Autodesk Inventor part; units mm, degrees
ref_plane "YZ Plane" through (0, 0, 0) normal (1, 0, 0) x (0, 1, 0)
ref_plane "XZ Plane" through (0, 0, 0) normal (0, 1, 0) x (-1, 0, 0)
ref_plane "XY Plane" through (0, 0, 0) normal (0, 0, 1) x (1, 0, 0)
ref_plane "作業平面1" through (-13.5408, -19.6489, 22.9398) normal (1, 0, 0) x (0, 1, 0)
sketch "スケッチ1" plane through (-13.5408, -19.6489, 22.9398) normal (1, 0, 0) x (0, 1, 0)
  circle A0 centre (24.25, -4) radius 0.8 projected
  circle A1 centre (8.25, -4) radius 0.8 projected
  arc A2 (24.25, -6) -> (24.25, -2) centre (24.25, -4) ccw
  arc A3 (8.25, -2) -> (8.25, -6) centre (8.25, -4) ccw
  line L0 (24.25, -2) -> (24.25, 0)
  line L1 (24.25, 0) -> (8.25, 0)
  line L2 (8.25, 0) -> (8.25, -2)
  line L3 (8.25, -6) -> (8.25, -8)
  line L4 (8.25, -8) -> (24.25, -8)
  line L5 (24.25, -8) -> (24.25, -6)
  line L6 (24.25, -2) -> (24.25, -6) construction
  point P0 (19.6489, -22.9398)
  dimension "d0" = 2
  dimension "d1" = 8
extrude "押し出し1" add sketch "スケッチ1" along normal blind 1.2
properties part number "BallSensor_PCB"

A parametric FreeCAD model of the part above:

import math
import FreeCAD as App
import Part
import Sketcher

doc = App.newDocument("Part")
params = doc.addObject("Spreadsheet::Sheet", "Params")
for row, (alias, value) in enumerate([
    ("sketch1_radius", "2 mm"),
    ("sketch1_height", "2 mm"),
    ("sketch1_diameter", "1.6 mm"),
    ("sketch1_width", "16 mm"),
    ("pad1_length", "1.2 mm"),
], start=1):
    params.set(f"A{row}", alias)
    params.set(f"B{row}", "=" + value)
    params.setAlias(f"B{row}", alias)

body = doc.addObject("PartDesign::Body", "Body")

# Sketch on YZ plane
sketch1 = body.newObject("Sketcher::SketchObject", "Sketch")
sketch1.AttachmentSupport = (doc.getObject("YZ_Plane"), [""])
sketch1.MapMode = "FlatFace"
sketch1.AttachmentOffset = App.Placement(App.Vector(0, 0, -13.5408), App.Rotation())
sketch1.addGeometry(Part.LineSegment(App.Vector(4.6, 14.9, 0), App.Vector(4.6, 16.9, 0)), False)
sketch1.addGeometry(Part.ArcOfCircle(Part.Circle(App.Vector(4.6, 18.9, 0), App.Vector(0, 0, 1), 2), math.radians(-90), math.radians(90)), False)
sketch1.addGeometry(Part.LineSegment(App.Vector(4.6, 20.9, 0), App.Vector(4.6, 22.9, 0)), False)
sketch1.addGeometry(Part.LineSegment(App.Vector(4.6, 22.9, 0), App.Vector(-11.4, 22.9, 0)), False)
sketch1.addGeometry(Part.LineSegment(App.Vector(-11.4, 22.9, 0), App.Vector(-11.4, 20.9, 0)), False)
sketch1.addGeometry(Part.ArcOfCircle(Part.Circle(App.Vector(-11.4, 18.9, 0), App.Vector(0, 0, 1), 2), math.radians(90), math.radians(270)), False)
sketch1.addGeometry(Part.LineSegment(App.Vector(-11.4, 16.9, 0), App.Vector(-11.4, 14.9, 0)), False)
sketch1.addGeometry(Part.LineSegment(App.Vector(-11.4, 14.9, 0), App.Vector(4.6, 14.9, 0)), False)
sketch1.addGeometry(Part.Circle(App.Vector(-11.4, 18.9, 0), App.Vector(0, 0, 1), 0.8), False)
sketch1.addGeometry(Part.Circle(App.Vector(4.6, 18.9, 0), App.Vector(0, 0, 1), 0.8), False)
sketch1.addConstraint(Sketcher.Constraint("Coincident", 0, 2, 1, 1))
sketch1.addConstraint(Sketcher.Constraint("Coincident", 1, 2, 2, 1))
sketch1.addConstraint(Sketcher.Constraint("Coincident", 2, 2, 3, 1))
sketch1.addConstraint(Sketcher.Constraint("Coincident", 3, 2, 4, 1))
sketch1.addConstraint(Sketcher.Constraint("Coincident", 4, 2, 5, 1))
sketch1.addConstraint(Sketcher.Constraint("Coincident", 5, 2, 6, 1))
sketch1.addConstraint(Sketcher.Constraint("Coincident", 6, 2, 7, 1))
sketch1.addConstraint(Sketcher.Constraint("Coincident", 7, 2, 0, 1))
sketch1.addConstraint(Sketcher.Constraint("Vertical", 0))
sketch1.addConstraint(Sketcher.Constraint("Vertical", 2))
sketch1.addConstraint(Sketcher.Constraint("Horizontal", 3))
sketch1.addConstraint(Sketcher.Constraint("Vertical", 4))
sketch1.addConstraint(Sketcher.Constraint("Vertical", 6))
sketch1.addConstraint(Sketcher.Constraint("Horizontal", 7))
sketch1.addConstraint(Sketcher.Constraint("Coincident", 8, 3, 5, 3))
sketch1.addConstraint(Sketcher.Constraint("Coincident", 9, 3, 1, 3))
sketch1.addConstraint(Sketcher.Constraint("Equal", 1, 5))
sketch1.addConstraint(Sketcher.Constraint("Equal", 8, 9))
sketch1.addConstraint(Sketcher.Constraint("Horizontal", 1, 3, 5, 3))
sketch1.addConstraint(Sketcher.Constraint("Vertical", 9, 3, 0, 2))
sketch1.addConstraint(Sketcher.Constraint("Vertical", 0, 2, 1, 2))
sketch1.addConstraint(Sketcher.Constraint("Vertical", 8, 3, 3, 2))
sketch1.addConstraint(Sketcher.Constraint("Vertical", 4, 2, 5, 2))
sketch1.addConstraint(Sketcher.Constraint("Equal", 0, 2))
sketch1.addConstraint(Sketcher.Constraint("Radius", 1, 2.0))
sketch1.addConstraint(Sketcher.Constraint("DistanceY", 0, 1, 0, 2, 2.0))
sketch1.addConstraint(Sketcher.Constraint("Diameter", 8, 1.6))
sketch1.addConstraint(Sketcher.Constraint("DistanceX", 3, 2, 3, 1, 16.0))
sketch1.addConstraint(Sketcher.Constraint("DistanceX", -1, 1, 1, 3, 4.601))
sketch1.addConstraint(Sketcher.Constraint("DistanceY", -1, 1, 1, 3, 18.9398))
sketch1.setExpression("Constraints[24]", "Params.sketch1_radius")
sketch1.setExpression("Constraints[25]", "Params.sketch1_height")
sketch1.setExpression("Constraints[26]", "Params.sketch1_diameter")
sketch1.setExpression("Constraints[27]", "Params.sketch1_width")
pad1 = body.newObject("PartDesign::Pad", "Pad")
pad1.Profile = sketch1
pad1.setExpression("Length", "Params.pad1_length")

doc.recompute()
